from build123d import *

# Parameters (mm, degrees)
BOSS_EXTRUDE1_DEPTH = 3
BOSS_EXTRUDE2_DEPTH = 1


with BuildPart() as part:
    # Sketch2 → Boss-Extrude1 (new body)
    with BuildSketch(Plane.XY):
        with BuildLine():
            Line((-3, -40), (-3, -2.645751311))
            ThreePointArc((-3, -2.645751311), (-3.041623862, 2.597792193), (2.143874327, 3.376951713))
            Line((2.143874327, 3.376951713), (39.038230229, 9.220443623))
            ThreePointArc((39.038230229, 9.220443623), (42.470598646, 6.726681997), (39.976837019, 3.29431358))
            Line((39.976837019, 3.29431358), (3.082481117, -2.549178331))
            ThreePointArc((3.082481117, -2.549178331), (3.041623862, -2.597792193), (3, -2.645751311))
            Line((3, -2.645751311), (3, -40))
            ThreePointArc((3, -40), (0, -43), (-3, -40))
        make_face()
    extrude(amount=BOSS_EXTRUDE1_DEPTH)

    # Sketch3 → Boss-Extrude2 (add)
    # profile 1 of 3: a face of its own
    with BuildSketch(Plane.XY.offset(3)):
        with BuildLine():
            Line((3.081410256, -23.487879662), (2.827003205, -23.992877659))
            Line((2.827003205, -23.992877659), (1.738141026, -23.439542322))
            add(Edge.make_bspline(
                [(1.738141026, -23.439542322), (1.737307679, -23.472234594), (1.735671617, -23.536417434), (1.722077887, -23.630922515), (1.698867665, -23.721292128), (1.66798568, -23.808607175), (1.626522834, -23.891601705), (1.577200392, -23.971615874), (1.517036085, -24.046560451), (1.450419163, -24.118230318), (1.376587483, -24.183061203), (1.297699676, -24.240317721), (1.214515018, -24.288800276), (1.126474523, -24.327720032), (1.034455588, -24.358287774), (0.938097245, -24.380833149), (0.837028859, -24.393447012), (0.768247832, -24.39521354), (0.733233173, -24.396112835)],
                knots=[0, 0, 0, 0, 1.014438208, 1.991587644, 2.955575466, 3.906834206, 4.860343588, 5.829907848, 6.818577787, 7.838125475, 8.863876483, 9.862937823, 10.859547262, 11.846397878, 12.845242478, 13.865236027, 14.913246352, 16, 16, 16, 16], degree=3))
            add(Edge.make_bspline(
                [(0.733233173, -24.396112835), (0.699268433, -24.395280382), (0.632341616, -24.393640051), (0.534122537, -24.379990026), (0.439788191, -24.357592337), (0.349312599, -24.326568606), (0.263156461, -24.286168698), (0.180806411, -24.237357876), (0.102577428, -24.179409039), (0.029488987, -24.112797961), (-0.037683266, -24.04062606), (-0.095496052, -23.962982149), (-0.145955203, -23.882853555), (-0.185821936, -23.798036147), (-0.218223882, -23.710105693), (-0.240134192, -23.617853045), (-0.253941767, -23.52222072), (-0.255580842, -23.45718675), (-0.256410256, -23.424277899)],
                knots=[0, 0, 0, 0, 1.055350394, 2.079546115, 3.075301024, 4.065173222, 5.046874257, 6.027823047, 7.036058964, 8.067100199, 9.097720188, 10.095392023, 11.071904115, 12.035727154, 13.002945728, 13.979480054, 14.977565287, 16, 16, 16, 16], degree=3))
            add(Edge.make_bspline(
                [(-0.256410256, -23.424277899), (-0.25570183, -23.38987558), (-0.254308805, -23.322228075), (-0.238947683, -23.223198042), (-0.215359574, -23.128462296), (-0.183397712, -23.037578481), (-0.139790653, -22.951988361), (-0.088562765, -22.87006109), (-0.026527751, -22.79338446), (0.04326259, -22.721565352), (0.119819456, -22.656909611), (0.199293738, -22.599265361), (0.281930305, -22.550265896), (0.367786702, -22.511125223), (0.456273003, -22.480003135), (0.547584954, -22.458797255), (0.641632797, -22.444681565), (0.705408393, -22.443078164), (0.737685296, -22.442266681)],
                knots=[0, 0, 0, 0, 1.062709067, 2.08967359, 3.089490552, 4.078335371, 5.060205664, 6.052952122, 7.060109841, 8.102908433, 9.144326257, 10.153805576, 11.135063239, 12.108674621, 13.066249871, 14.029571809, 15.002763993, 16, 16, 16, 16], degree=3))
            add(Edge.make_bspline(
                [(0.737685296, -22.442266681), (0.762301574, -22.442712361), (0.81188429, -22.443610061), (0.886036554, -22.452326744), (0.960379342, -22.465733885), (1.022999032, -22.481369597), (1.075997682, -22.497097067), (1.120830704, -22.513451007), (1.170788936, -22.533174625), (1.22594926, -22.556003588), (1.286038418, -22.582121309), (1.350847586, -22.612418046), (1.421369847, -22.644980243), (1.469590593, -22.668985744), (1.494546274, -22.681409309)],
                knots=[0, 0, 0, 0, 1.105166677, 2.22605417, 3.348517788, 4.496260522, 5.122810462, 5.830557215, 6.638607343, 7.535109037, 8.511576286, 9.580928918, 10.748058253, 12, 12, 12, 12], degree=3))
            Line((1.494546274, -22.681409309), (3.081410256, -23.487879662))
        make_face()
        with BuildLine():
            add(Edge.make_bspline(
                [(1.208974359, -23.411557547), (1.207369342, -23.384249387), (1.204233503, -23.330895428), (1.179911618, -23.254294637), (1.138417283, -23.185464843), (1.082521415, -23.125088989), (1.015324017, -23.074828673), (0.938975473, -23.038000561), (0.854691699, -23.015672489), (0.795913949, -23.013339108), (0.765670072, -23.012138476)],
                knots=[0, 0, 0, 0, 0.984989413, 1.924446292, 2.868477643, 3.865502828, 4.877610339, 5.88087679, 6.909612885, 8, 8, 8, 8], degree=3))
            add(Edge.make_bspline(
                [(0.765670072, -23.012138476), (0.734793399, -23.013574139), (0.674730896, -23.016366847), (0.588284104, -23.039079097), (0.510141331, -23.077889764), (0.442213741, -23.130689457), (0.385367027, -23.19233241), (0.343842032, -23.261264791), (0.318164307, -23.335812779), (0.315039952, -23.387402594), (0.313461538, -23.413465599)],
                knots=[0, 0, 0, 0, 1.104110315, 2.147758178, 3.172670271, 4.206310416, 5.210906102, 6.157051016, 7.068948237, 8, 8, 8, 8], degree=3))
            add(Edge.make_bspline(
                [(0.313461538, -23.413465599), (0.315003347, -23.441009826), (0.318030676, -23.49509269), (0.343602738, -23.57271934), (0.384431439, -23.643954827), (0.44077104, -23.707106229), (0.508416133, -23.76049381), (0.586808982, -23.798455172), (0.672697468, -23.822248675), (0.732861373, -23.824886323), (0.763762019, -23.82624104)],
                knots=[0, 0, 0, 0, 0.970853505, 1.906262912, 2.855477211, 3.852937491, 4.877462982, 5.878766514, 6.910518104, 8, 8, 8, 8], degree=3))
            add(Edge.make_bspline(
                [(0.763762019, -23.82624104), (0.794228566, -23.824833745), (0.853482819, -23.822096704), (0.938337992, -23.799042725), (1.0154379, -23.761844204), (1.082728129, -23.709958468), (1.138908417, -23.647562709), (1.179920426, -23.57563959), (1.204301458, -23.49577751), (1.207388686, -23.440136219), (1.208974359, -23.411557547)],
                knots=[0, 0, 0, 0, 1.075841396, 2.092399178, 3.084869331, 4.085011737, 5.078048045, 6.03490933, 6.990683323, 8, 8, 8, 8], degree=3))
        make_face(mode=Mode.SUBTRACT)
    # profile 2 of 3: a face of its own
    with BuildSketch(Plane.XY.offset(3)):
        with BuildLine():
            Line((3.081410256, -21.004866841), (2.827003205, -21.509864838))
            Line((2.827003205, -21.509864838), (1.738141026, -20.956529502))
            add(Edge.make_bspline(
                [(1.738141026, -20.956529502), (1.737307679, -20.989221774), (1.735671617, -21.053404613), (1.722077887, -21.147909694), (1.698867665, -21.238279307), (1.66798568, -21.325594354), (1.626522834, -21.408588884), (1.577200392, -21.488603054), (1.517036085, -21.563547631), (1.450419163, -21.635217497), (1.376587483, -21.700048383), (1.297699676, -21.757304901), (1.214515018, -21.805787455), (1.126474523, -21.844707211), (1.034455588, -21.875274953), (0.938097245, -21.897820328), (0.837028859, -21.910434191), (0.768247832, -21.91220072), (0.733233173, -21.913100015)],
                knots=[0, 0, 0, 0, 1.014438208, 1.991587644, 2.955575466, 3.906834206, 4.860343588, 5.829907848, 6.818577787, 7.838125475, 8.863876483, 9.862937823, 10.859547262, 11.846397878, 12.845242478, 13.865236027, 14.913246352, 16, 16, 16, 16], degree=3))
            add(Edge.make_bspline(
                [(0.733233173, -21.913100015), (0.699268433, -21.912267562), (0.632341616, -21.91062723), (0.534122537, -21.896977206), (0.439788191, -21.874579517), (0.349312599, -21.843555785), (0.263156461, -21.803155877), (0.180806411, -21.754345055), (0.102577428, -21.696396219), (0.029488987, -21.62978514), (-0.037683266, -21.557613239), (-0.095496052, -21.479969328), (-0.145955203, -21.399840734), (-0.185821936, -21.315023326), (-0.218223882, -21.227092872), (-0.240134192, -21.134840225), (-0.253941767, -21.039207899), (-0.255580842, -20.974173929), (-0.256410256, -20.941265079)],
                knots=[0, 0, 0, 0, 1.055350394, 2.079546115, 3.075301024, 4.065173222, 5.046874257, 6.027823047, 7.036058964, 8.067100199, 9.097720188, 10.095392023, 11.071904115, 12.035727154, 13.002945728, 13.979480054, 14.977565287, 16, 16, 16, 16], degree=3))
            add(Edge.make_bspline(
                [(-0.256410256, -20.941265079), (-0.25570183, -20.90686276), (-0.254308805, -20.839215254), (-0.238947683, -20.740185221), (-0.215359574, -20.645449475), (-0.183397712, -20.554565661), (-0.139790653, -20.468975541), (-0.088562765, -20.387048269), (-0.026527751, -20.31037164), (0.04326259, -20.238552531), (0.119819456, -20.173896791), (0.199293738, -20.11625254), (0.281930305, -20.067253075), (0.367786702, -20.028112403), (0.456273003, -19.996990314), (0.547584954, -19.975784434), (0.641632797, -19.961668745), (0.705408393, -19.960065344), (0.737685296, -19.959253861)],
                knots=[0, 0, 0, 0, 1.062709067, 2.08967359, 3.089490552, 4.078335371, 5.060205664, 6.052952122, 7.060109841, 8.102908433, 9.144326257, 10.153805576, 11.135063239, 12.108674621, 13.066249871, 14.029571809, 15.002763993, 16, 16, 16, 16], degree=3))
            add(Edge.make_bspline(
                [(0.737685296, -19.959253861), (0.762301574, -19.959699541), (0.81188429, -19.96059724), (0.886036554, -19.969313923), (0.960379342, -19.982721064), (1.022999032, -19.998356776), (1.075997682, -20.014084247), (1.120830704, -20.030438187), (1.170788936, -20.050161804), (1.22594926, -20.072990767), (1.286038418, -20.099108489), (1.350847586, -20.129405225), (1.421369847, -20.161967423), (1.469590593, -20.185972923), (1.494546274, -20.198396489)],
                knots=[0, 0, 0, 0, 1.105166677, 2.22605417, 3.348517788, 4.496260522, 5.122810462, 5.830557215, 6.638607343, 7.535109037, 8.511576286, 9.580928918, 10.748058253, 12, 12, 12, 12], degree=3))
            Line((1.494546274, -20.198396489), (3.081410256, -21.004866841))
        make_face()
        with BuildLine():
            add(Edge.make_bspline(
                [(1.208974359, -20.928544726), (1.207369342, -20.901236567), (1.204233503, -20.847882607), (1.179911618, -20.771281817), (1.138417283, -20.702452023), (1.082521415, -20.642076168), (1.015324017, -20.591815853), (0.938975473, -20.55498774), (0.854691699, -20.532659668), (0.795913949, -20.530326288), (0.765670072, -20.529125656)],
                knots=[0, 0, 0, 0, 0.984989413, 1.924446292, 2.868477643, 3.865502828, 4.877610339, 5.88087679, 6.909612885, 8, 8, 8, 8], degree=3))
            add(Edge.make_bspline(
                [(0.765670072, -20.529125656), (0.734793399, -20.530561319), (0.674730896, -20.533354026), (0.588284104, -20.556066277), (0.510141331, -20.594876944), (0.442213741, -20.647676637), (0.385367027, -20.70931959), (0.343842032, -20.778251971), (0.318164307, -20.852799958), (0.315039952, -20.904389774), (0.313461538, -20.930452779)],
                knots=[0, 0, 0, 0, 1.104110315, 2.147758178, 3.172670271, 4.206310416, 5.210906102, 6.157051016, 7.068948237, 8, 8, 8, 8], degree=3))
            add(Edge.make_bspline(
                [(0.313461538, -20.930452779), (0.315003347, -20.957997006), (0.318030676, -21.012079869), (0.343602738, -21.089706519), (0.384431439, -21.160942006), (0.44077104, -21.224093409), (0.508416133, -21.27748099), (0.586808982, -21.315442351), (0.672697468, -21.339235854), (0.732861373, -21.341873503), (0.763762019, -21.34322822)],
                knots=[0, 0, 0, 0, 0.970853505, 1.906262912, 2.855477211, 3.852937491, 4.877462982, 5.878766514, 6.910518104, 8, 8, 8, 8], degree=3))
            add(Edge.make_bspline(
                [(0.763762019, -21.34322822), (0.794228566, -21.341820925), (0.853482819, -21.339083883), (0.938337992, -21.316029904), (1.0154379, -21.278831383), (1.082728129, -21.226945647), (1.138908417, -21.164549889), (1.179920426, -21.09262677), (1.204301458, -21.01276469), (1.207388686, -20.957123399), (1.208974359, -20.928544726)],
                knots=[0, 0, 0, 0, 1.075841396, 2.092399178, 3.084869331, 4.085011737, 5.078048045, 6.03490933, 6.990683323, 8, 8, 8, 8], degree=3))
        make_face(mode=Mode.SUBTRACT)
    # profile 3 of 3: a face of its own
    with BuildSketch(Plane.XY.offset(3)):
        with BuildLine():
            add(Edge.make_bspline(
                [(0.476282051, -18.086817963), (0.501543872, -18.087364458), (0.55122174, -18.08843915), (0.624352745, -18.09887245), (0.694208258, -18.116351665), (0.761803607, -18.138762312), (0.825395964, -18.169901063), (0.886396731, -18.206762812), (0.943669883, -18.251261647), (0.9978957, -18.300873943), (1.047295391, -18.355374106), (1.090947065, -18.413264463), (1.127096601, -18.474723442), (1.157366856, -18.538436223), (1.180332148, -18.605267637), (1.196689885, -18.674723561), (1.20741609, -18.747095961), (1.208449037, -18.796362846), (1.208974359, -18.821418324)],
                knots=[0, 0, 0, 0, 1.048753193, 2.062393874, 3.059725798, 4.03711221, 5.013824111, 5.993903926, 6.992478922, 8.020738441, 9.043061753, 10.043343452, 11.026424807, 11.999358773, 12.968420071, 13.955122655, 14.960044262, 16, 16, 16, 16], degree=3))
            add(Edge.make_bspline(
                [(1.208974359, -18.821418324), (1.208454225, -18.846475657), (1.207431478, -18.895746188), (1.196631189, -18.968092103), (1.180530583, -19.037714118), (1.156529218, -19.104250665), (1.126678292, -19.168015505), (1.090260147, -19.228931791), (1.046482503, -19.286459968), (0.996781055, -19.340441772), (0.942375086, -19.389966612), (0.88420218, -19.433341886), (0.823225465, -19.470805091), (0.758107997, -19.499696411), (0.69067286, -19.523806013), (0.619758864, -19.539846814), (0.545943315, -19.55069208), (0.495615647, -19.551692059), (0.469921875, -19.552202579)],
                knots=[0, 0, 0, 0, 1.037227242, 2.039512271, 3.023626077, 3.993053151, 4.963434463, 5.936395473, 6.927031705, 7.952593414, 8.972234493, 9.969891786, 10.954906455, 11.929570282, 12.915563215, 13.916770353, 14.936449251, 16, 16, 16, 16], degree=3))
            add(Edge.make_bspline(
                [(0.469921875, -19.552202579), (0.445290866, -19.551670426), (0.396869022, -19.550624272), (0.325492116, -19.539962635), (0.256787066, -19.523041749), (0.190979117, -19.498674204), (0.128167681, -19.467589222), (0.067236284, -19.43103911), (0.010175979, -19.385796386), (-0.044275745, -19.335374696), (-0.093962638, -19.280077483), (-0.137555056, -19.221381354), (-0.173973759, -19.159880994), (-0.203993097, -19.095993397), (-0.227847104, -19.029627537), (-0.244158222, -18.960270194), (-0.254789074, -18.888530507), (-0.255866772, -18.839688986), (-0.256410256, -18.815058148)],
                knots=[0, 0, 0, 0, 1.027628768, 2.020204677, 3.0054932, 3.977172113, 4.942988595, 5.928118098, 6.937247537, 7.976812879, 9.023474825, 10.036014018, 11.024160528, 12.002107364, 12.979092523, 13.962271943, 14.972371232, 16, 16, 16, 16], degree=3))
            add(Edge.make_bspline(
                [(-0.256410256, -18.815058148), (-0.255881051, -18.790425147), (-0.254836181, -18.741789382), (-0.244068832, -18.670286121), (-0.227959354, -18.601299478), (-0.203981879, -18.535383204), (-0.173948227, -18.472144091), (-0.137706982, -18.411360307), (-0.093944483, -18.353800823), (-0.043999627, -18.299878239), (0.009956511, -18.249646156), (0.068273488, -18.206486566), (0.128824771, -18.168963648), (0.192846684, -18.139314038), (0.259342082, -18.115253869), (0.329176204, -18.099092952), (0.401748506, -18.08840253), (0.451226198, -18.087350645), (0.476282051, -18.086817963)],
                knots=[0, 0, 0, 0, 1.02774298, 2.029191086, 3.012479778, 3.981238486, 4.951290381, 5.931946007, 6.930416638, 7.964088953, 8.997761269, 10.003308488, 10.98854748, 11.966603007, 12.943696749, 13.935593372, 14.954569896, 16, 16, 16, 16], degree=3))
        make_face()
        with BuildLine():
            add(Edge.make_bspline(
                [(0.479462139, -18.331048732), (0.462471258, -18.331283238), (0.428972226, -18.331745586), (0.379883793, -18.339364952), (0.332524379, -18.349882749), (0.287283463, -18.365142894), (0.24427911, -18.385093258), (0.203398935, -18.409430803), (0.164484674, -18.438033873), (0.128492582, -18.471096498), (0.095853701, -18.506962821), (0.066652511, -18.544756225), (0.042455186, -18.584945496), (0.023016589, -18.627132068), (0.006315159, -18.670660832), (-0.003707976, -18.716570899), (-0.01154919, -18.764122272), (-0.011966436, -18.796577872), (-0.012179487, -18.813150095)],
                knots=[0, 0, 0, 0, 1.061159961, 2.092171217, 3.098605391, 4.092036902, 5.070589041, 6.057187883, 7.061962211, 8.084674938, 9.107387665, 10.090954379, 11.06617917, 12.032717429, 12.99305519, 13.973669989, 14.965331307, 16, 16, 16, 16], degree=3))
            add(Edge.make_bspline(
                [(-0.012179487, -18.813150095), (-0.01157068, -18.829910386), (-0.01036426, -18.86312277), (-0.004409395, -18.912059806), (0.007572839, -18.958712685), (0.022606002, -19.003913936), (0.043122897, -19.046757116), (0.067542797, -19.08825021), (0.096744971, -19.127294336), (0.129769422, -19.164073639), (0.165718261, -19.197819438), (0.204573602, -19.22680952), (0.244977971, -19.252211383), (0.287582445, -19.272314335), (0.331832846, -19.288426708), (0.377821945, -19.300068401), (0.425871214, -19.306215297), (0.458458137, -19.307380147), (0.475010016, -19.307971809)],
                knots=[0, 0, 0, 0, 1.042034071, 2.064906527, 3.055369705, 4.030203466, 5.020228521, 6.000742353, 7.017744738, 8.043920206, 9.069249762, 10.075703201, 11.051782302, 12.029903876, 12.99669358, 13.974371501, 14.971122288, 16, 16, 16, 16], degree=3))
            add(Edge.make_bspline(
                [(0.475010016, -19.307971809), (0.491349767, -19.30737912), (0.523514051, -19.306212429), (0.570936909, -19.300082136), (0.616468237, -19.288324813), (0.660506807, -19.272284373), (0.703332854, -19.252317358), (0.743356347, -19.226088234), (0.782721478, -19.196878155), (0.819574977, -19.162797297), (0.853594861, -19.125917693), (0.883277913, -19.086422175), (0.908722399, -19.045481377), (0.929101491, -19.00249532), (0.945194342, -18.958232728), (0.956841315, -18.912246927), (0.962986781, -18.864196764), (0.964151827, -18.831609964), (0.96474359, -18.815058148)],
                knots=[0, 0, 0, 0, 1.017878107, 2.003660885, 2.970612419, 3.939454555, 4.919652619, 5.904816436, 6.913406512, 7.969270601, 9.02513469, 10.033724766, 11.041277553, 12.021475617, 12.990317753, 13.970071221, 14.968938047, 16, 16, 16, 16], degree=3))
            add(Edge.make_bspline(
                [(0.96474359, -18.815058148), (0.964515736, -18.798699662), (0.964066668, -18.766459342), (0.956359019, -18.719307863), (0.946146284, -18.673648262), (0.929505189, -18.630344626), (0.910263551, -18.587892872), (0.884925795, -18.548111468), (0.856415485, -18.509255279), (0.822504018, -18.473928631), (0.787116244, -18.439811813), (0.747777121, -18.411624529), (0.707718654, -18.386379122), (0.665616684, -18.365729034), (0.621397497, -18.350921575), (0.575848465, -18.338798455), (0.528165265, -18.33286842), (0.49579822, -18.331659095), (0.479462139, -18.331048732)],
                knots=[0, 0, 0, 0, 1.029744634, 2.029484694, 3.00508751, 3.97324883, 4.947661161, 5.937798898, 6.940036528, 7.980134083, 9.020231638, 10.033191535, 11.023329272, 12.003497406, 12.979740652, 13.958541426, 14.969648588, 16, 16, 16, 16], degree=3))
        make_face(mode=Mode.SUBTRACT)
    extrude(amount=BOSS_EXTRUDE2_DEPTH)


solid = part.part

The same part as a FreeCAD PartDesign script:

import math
import FreeCAD as App
import Part
import Sketcher
Q = App.Units.Quantity

doc = App.newDocument("Part")
body = doc.addObject("PartDesign::Body", "Body")

# Sketch on XY plane
sketch1 = body.newObject("Sketcher::SketchObject", "Sketch")
sketch1.AttachmentSupport = (doc.getObject("XY_Plane"), [""])
sketch1.MapMode = "FlatFace"
sketch1.addGeometry([
    Part.LineSegment(App.Vector(-3, -2.65, 0), App.Vector(-3, -40, 0)),  # 0
    Part.ArcOfCircle(Part.Circle(App.Vector(0, -40, 0), App.Vector(0, 0, 1), 3), math.radians(180), math.radians(360)),  # 1
    Part.LineSegment(App.Vector(3, -40, 0), App.Vector(3, -2.65, 0)),  # 2
    Part.ArcOfCircle(Part.Circle(App.Vector(0, 0, 0), App.Vector(0, 0, 1), 4), math.radians(-41.41), math.radians(-39.59)),  # 3
    Part.LineSegment(App.Vector(3.08, -2.55, 0), App.Vector(39.98, 3.29, 0)),  # 4
    Part.ArcOfCircle(Part.Circle(App.Vector(39.51, 6.26, 0), App.Vector(0, 0, 1), 3), math.radians(-81), math.radians(99)),  # 5
    Part.LineSegment(App.Vector(39.04, 9.22, 0), App.Vector(2.14, 3.38, 0)),  # 6
    Part.ArcOfCircle(Part.Circle(App.Vector(0, 0, 0), App.Vector(0, 0, 1), 4), math.radians(58), math.radians(221)),  # 7
], False)
sketch1.addConstraint([
    Sketcher.Constraint("Tangent", 0, 2, 1, 1),
    Sketcher.Constraint("Tangent", 1, 2, 2, 1),
    Sketcher.Constraint("Coincident", 2, 2, 3, 1),
    Sketcher.Constraint("Coincident", 3, 2, 4, 1),
    Sketcher.Constraint("Tangent", 4, 2, 5, 1),
    Sketcher.Constraint("Tangent", 5, 2, 6, 1),
    Sketcher.Constraint("Coincident", 6, 2, 7, 1),
    Sketcher.Constraint("Coincident", 7, 2, 0, 1),
    Sketcher.Constraint("Vertical", 0),
    Sketcher.Constraint("Vertical", 2),
    Sketcher.Constraint("Coincident", 3, 3, -1, 1),
    Sketcher.Constraint("Coincident", 7, 3, -1, 1),
    Sketcher.Constraint("Equal", 1, 5),
    Sketcher.Constraint("Symmetric", 2, 2, 7, 2, -2),
    Sketcher.Constraint("Parallel", 4, 6),
    Sketcher.Constraint("Equal", 4, 6),
    Sketcher.Constraint("Radius", 1, Q("3 mm")),
    Sketcher.Constraint("Radius", 7, Q("4 mm")),
    Sketcher.Constraint("Angle", 4, Q("9 deg")),
    Sketcher.Constraint("DistanceY", 1, 3, -1, 1, Q("40 mm")),
    Sketcher.Constraint("Distance", 4, Q("37.354249 mm")),
])
pad1 = body.newObject("PartDesign::Pad", "Pad")
pad1.Profile = sketch1
pad1.Length = 3

# Sketch on XY plane
sketch2 = body.newObject("Sketcher::SketchObject", "Sketch001")
sketch2.AttachmentSupport = (doc.getObject("XY_Plane"), [""])
sketch2.MapMode = "FlatFace"
sketch2.AttachmentOffset = App.Placement(App.Vector(0, 0, 3), App.Rotation())
sketch2.addGeometry([
    Part.LineSegment(App.Vector(2.827003, -23.992878, 0), App.Vector(3.08141, -23.48788, 0)),  # 0
    Part.LineSegment(App.Vector(3.08141, -23.48788, 0), App.Vector(1.494546, -22.681409, 0)),  # 1
    Part.BSplineCurve([App.Vector(0.737685, -22.442267, 0), App.Vector(0.762302, -22.442712, 0), App.Vector(0.811884, -22.44361, 0), App.Vector(0.886037, -22.452327, 0), App.Vector(0.960379, -22.465734, 0), App.Vector(1.022999, -22.48137, 0), App.Vector(1.075998, -22.497097, 0), App.Vector(1.120831, -22.513451, 0), App.Vector(1.170789, -22.533175, 0), App.Vector(1.225949, -22.556004, 0), App.Vector(1.286038, -22.582121, 0), App.Vector(1.350848, -22.612418, 0), App.Vector(1.42137, -22.64498, 0), App.Vector(1.469591, -22.668986, 0), App.Vector(1.494546, -22.681409, 0)], [4, 1, 1, 1, 1, 1, 1, 1, 1, 1, 1, 1, 4], [0, 1.105166677, 2.22605417, 3.348517788, 4.496260522, 5.122810462, 5.830557215, 6.638607343, 7.535109037, 8.511576286, 9.580928918, 10.748058253, 12], False, 3, [1, 1, 1, 1, 1, 1, 1, 1, 1, 1, 1, 1, 1, 1, 1], False),  # 2
    Part.BSplineCurve([App.Vector(-0.25641, -23.424278, 0), App.Vector(-0.255702, -23.389876, 0), App.Vector(-0.254309, -23.322228, 0), App.Vector(-0.238948, -23.223198, 0), App.Vector(-0.21536, -23.128462, 0), App.Vector(-0.183398, -23.037578, 0), App.Vector(-0.139791, -22.951988, 0), App.Vector(-0.088563, -22.870061, 0), App.Vector(-0.026528, -22.793384, 0), App.Vector(0.043263, -22.721565, 0), App.Vector(0.119819, -22.65691, 0), App.Vector(0.199294, -22.599265, 0), App.Vector(0.28193, -22.550266, 0), App.Vector(0.367787, -22.511125, 0), App.Vector(0.456273, -22.480003, 0), App.Vector(0.547585, -22.458797, 0), App.Vector(0.641633, -22.444682, 0), App.Vector(0.705408, -22.443078, 0), App.Vector(0.737685, -22.442267, 0)], [4, 1, 1, 1, 1, 1, 1, 1, 1, 1, 1, 1, 1, 1, 1, 1, 4], [0, 1.062709067, 2.08967359, 3.089490552, 4.078335371, 5.060205664, 6.052952122, 7.060109841, 8.102908433, 9.144326257, 10.153805576, 11.135063239, 12.108674621, 13.066249871, 14.029571809, 15.002763993, 16], False, 3, [1, 1, 1, 1, 1, 1, 1, 1, 1, 1, 1, 1, 1, 1, 1, 1, 1, 1, 1], False),  # 3
    Part.BSplineCurve([App.Vector(0.733233, -24.396113, 0), App.Vector(0.699268, -24.39528, 0), App.Vector(0.632342, -24.39364, 0), App.Vector(0.534123, -24.37999, 0), App.Vector(0.439788, -24.357592, 0), App.Vector(0.349313, -24.326569, 0), App.Vector(0.263156, -24.286169, 0), App.Vector(0.180806, -24.237358, 0), App.Vector(0.102577, -24.179409, 0), App.Vector(0.029489, -24.112798, 0), App.Vector(-0.037683, -24.040626, 0), App.Vector(-0.095496, -23.962982, 0), App.Vector(-0.145955, -23.882854, 0), App.Vector(-0.185822, -23.798036, 0), App.Vector(-0.218224, -23.710106, 0), App.Vector(-0.240134, -23.617853, 0), App.Vector(-0.253942, -23.522221, 0), App.Vector(-0.255581, -23.457187, 0), App.Vector(-0.25641, -23.424278, 0)], [4, 1, 1, 1, 1, 1, 1, 1, 1, 1, 1, 1, 1, 1, 1, 1, 4], [0, 1.055350394, 2.079546115, 3.075301024, 4.065173222, 5.046874257, 6.027823047, 7.036058964, 8.067100199, 9.097720188, 10.095392023, 11.071904115, 12.035727154, 13.002945728, 13.979480054, 14.977565287, 16], False, 3, [1, 1, 1, 1, 1, 1, 1, 1, 1, 1, 1, 1, 1, 1, 1, 1, 1, 1, 1], False),  # 4
    Part.BSplineCurve([App.Vector(1.738141, -23.439542, 0), App.Vector(1.737308, -23.472235, 0), App.Vector(1.735672, -23.536417, 0), App.Vector(1.722078, -23.630923, 0), App.Vector(1.698868, -23.721292, 0), App.Vector(1.667986, -23.808607, 0), App.Vector(1.626523, -23.891602, 0), App.Vector(1.5772, -23.971616, 0), App.Vector(1.517036, -24.04656, 0), App.Vector(1.450419, -24.11823, 0), App.Vector(1.376587, -24.183061, 0), App.Vector(1.2977, -24.240318, 0), App.Vector(1.214515, -24.2888, 0), App.Vector(1.126475, -24.32772, 0), App.Vector(1.034456, -24.358288, 0), App.Vector(0.938097, -24.380833, 0), App.Vector(0.837029, -24.393447, 0), App.Vector(0.768248, -24.395214, 0), App.Vector(0.733233, -24.396113, 0)], [4, 1, 1, 1, 1, 1, 1, 1, 1, 1, 1, 1, 1, 1, 1, 1, 4], [0, 1.014438208, 1.991587644, 2.955575466, 3.906834206, 4.860343588, 5.829907848, 6.818577787, 7.838125475, 8.863876483, 9.862937823, 10.859547262, 11.846397878, 12.845242478, 13.865236027, 14.913246352, 16], False, 3, [1, 1, 1, 1, 1, 1, 1, 1, 1, 1, 1, 1, 1, 1, 1, 1, 1, 1, 1], False),  # 5
    Part.LineSegment(App.Vector(1.738141, -23.439542, 0), App.Vector(2.827003, -23.992878, 0)),  # 6
    Part.BSplineCurve([App.Vector(0.763762, -23.826241, 0), App.Vector(0.794229, -23.824834, 0), App.Vector(0.853483, -23.822097, 0), App.Vector(0.938338, -23.799043, 0), App.Vector(1.015438, -23.761844, 0), App.Vector(1.082728, -23.709958, 0), App.Vector(1.138908, -23.647563, 0), App.Vector(1.17992, -23.57564, 0), App.Vector(1.204301, -23.495778, 0), App.Vector(1.207389, -23.440136, 0), App.Vector(1.208974, -23.411558, 0)], [4, 1, 1, 1, 1, 1, 1, 1, 4], [0, 1.075841396, 2.092399178, 3.084869331, 4.085011737, 5.078048045, 6.03490933, 6.990683323, 8], False, 3, [1, 1, 1, 1, 1, 1, 1, 1, 1, 1, 1], False),  # 7
    Part.BSplineCurve([App.Vector(0.313462, -23.413466, 0), App.Vector(0.315003, -23.44101, 0), App.Vector(0.318031, -23.495093, 0), App.Vector(0.343603, -23.572719, 0), App.Vector(0.384431, -23.643955, 0), App.Vector(0.440771, -23.707106, 0), App.Vector(0.508416, -23.760494, 0), App.Vector(0.586809, -23.798455, 0), App.Vector(0.672697, -23.822249, 0), App.Vector(0.732861, -23.824886, 0), App.Vector(0.763762, -23.826241, 0)], [4, 1, 1, 1, 1, 1, 1, 1, 4], [0, 0.970853505, 1.906262912, 2.855477211, 3.852937491, 4.877462982, 5.878766514, 6.910518104, 8], False, 3, [1, 1, 1, 1, 1, 1, 1, 1, 1, 1, 1], False),  # 8
    Part.BSplineCurve([App.Vector(0.76567, -23.012138, 0), App.Vector(0.734793, -23.013574, 0), App.Vector(0.674731, -23.016367, 0), App.Vector(0.588284, -23.039079, 0), App.Vector(0.510141, -23.07789, 0), App.Vector(0.442214, -23.130689, 0), App.Vector(0.385367, -23.192332, 0), App.Vector(0.343842, -23.261265, 0), App.Vector(0.318164, -23.335813, 0), App.Vector(0.31504, -23.387403, 0), App.Vector(0.313462, -23.413466, 0)], [4, 1, 1, 1, 1, 1, 1, 1, 4], [0, 1.104110315, 2.147758178, 3.172670271, 4.206310416, 5.210906102, 6.157051016, 7.068948237, 8], False, 3, [1, 1, 1, 1, 1, 1, 1, 1, 1, 1, 1], False),  # 9
    Part.BSplineCurve([App.Vector(1.208974, -23.411558, 0), App.Vector(1.207369, -23.384249, 0), App.Vector(1.204234, -23.330895, 0), App.Vector(1.179912, -23.254295, 0), App.Vector(1.138417, -23.185465, 0), App.Vector(1.082521, -23.125089, 0), App.Vector(1.015324, -23.074829, 0), App.Vector(0.938975, -23.038001, 0), App.Vector(0.854692, -23.015672, 0), App.Vector(0.795914, -23.013339, 0), App.Vector(0.76567, -23.012138, 0)], [4, 1, 1, 1, 1, 1, 1, 1, 4], [0, 0.984989413, 1.924446292, 2.868477643, 3.865502828, 4.877610339, 5.88087679, 6.909612885, 8], False, 3, [1, 1, 1, 1, 1, 1, 1, 1, 1, 1, 1], False),  # 10
    Part.LineSegment(App.Vector(2.827003, -21.509865, 0), App.Vector(3.08141, -21.004867, 0)),  # 11
    Part.LineSegment(App.Vector(3.08141, -21.004867, 0), App.Vector(1.494546, -20.198396, 0)),  # 12
    Part.BSplineCurve([App.Vector(0.737685, -19.959254, 0), App.Vector(0.762302, -19.9597, 0), App.Vector(0.811884, -19.960597, 0), App.Vector(0.886037, -19.969314, 0), App.Vector(0.960379, -19.982721, 0), App.Vector(1.022999, -19.998357, 0), App.Vector(1.075998, -20.014084, 0), App.Vector(1.120831, -20.030438, 0), App.Vector(1.170789, -20.050162, 0), App.Vector(1.225949, -20.072991, 0), App.Vector(1.286038, -20.099108, 0), App.Vector(1.350848, -20.129405, 0), App.Vector(1.42137, -20.161967, 0), App.Vector(1.469591, -20.185973, 0), App.Vector(1.494546, -20.198396, 0)], [4, 1, 1, 1, 1, 1, 1, 1, 1, 1, 1, 1, 4], [0, 1.105166677, 2.22605417, 3.348517788, 4.496260522, 5.122810462, 5.830557215, 6.638607343, 7.535109037, 8.511576286, 9.580928918, 10.748058253, 12], False, 3, [1, 1, 1, 1, 1, 1, 1, 1, 1, 1, 1, 1, 1, 1, 1], False),  # 13
    Part.BSplineCurve([App.Vector(-0.25641, -20.941265, 0), App.Vector(-0.255702, -20.906863, 0), App.Vector(-0.254309, -20.839215, 0), App.Vector(-0.238948, -20.740185, 0), App.Vector(-0.21536, -20.645449, 0), App.Vector(-0.183398, -20.554566, 0), App.Vector(-0.139791, -20.468976, 0), App.Vector(-0.088563, -20.387048, 0), App.Vector(-0.026528, -20.310372, 0), App.Vector(0.043263, -20.238553, 0), App.Vector(0.119819, -20.173897, 0), App.Vector(0.199294, -20.116253, 0), App.Vector(0.28193, -20.067253, 0), App.Vector(0.367787, -20.028112, 0), App.Vector(0.456273, -19.99699, 0), App.Vector(0.547585, -19.975784, 0), App.Vector(0.641633, -19.961669, 0), App.Vector(0.705408, -19.960065, 0), App.Vector(0.737685, -19.959254, 0)], [4, 1, 1, 1, 1, 1, 1, 1, 1, 1, 1, 1, 1, 1, 1, 1, 4], [0, 1.062709067, 2.08967359, 3.089490552, 4.078335371, 5.060205664, 6.052952122, 7.060109841, 8.102908433, 9.144326257, 10.153805576, 11.135063239, 12.108674621, 13.066249871, 14.029571809, 15.002763993, 16], False, 3, [1, 1, 1, 1, 1, 1, 1, 1, 1, 1, 1, 1, 1, 1, 1, 1, 1, 1, 1], False),  # 14
    Part.BSplineCurve([App.Vector(0.733233, -21.9131, 0), App.Vector(0.699268, -21.912268, 0), App.Vector(0.632342, -21.910627, 0), App.Vector(0.534123, -21.896977, 0), App.Vector(0.439788, -21.87458, 0), App.Vector(0.349313, -21.843556, 0), App.Vector(0.263156, -21.803156, 0), App.Vector(0.180806, -21.754345, 0), App.Vector(0.102577, -21.696396, 0), App.Vector(0.029489, -21.629785, 0), App.Vector(-0.037683, -21.557613, 0), App.Vector(-0.095496, -21.479969, 0), App.Vector(-0.145955, -21.399841, 0), App.Vector(-0.185822, -21.315023, 0), App.Vector(-0.218224, -21.227093, 0), App.Vector(-0.240134, -21.13484, 0), App.Vector(-0.253942, -21.039208, 0), App.Vector(-0.255581, -20.974174, 0), App.Vector(-0.25641, -20.941265, 0)], [4, 1, 1, 1, 1, 1, 1, 1, 1, 1, 1, 1, 1, 1, 1, 1, 4], [0, 1.055350394, 2.079546115, 3.075301024, 4.065173222, 5.046874257, 6.027823047, 7.036058964, 8.067100199, 9.097720188, 10.095392023, 11.071904115, 12.035727154, 13.002945728, 13.979480054, 14.977565287, 16], False, 3, [1, 1, 1, 1, 1, 1, 1, 1, 1, 1, 1, 1, 1, 1, 1, 1, 1, 1, 1], False),  # 15
    Part.BSplineCurve([App.Vector(1.738141, -20.95653, 0), App.Vector(1.737308, -20.989222, 0), App.Vector(1.735672, -21.053405, 0), App.Vector(1.722078, -21.14791, 0), App.Vector(1.698868, -21.238279, 0), App.Vector(1.667986, -21.325594, 0), App.Vector(1.626523, -21.408589, 0), App.Vector(1.5772, -21.488603, 0), App.Vector(1.517036, -21.563548, 0), App.Vector(1.450419, -21.635217, 0), App.Vector(1.376587, -21.700048, 0), App.Vector(1.2977, -21.757305, 0), App.Vector(1.214515, -21.805787, 0), App.Vector(1.126475, -21.844707, 0), App.Vector(1.034456, -21.875275, 0), App.Vector(0.938097, -21.89782, 0), App.Vector(0.837029, -21.910434, 0), App.Vector(0.768248, -21.912201, 0), App.Vector(0.733233, -21.9131, 0)], [4, 1, 1, 1, 1, 1, 1, 1, 1, 1, 1, 1, 1, 1, 1, 1, 4], [0, 1.014438208, 1.991587644, 2.955575466, 3.906834206, 4.860343588, 5.829907848, 6.818577787, 7.838125475, 8.863876483, 9.862937823, 10.859547262, 11.846397878, 12.845242478, 13.865236027, 14.913246352, 16], False, 3, [1, 1, 1, 1, 1, 1, 1, 1, 1, 1, 1, 1, 1, 1, 1, 1, 1, 1, 1], False),  # 16
    Part.LineSegment(App.Vector(1.738141, -20.95653, 0), App.Vector(2.827003, -21.509865, 0)),  # 17
    Part.BSplineCurve([App.Vector(0.763762, -21.343228, 0), App.Vector(0.794229, -21.341821, 0), App.Vector(0.853483, -21.339084, 0), App.Vector(0.938338, -21.31603, 0), App.Vector(1.015438, -21.278831, 0), App.Vector(1.082728, -21.226946, 0), App.Vector(1.138908, -21.16455, 0), App.Vector(1.17992, -21.092627, 0), App.Vector(1.204301, -21.012765, 0), App.Vector(1.207389, -20.957123, 0), App.Vector(1.208974, -20.928545, 0)], [4, 1, 1, 1, 1, 1, 1, 1, 4], [0, 1.075841396, 2.092399178, 3.084869331, 4.085011737, 5.078048045, 6.03490933, 6.990683323, 8], False, 3, [1, 1, 1, 1, 1, 1, 1, 1, 1, 1, 1], False),  # 18
    Part.BSplineCurve([App.Vector(0.313462, -20.930453, 0), App.Vector(0.315003, -20.957997, 0), App.Vector(0.318031, -21.01208, 0), App.Vector(0.343603, -21.089707, 0), App.Vector(0.384431, -21.160942, 0), App.Vector(0.440771, -21.224093, 0), App.Vector(0.508416, -21.277481, 0), App.Vector(0.586809, -21.315442, 0), App.Vector(0.672697, -21.339236, 0), App.Vector(0.732861, -21.341874, 0), App.Vector(0.763762, -21.343228, 0)], [4, 1, 1, 1, 1, 1, 1, 1, 4], [0, 0.970853505, 1.906262912, 2.855477211, 3.852937491, 4.877462982, 5.878766514, 6.910518104, 8], False, 3, [1, 1, 1, 1, 1, 1, 1, 1, 1, 1, 1], False),  # 19
    Part.BSplineCurve([App.Vector(0.76567, -20.529126, 0), App.Vector(0.734793, -20.530561, 0), App.Vector(0.674731, -20.533354, 0), App.Vector(0.588284, -20.556066, 0), App.Vector(0.510141, -20.594877, 0), App.Vector(0.442214, -20.647677, 0), App.Vector(0.385367, -20.70932, 0), App.Vector(0.343842, -20.778252, 0), App.Vector(0.318164, -20.8528, 0), App.Vector(0.31504, -20.90439, 0), App.Vector(0.313462, -20.930453, 0)], [4, 1, 1, 1, 1, 1, 1, 1, 4], [0, 1.104110315, 2.147758178, 3.172670271, 4.206310416, 5.210906102, 6.157051016, 7.068948237, 8], False, 3, [1, 1, 1, 1, 1, 1, 1, 1, 1, 1, 1], False),  # 20
    Part.BSplineCurve([App.Vector(1.208974, -20.928545, 0), App.Vector(1.207369, -20.901237, 0), App.Vector(1.204234, -20.847883, 0), App.Vector(1.179912, -20.771282, 0), App.Vector(1.138417, -20.702452, 0), App.Vector(1.082521, -20.642076, 0), App.Vector(1.015324, -20.591816, 0), App.Vector(0.938975, -20.554988, 0), App.Vector(0.854692, -20.53266, 0), App.Vector(0.795914, -20.530326, 0), App.Vector(0.76567, -20.529126, 0)], [4, 1, 1, 1, 1, 1, 1, 1, 4], [0, 0.984989413, 1.924446292, 2.868477643, 3.865502828, 4.877610339, 5.88087679, 6.909612885, 8], False, 3, [1, 1, 1, 1, 1, 1, 1, 1, 1, 1, 1], False),  # 21
    Part.BSplineCurve([App.Vector(0.476282, -18.086818, 0), App.Vector(0.501544, -18.087364, 0), App.Vector(0.551222, -18.088439, 0), App.Vector(0.624353, -18.098872, 0), App.Vector(0.694208, -18.116352, 0), App.Vector(0.761804, -18.138762, 0), App.Vector(0.825396, -18.169901, 0), App.Vector(0.886397, -18.206763, 0), App.Vector(0.94367, -18.251262, 0), App.Vector(0.997896, -18.300874, 0), App.Vector(1.047295, -18.355374, 0), App.Vector(1.090947, -18.413264, 0), App.Vector(1.127097, -18.474723, 0), App.Vector(1.157367, -18.538436, 0), App.Vector(1.180332, -18.605268, 0), App.Vector(1.19669, -18.674724, 0), App.Vector(1.207416, -18.747096, 0), App.Vector(1.208449, -18.796363, 0), App.Vector(1.208974, -18.821418, 0)], [4, 1, 1, 1, 1, 1, 1, 1, 1, 1, 1, 1, 1, 1, 1, 1, 4], [0, 1.048753193, 2.062393874, 3.059725798, 4.03711221, 5.013824111, 5.993903926, 6.992478922, 8.020738441, 9.043061753, 10.043343452, 11.026424807, 11.999358773, 12.968420071, 13.955122655, 14.960044262, 16], False, 3, [1, 1, 1, 1, 1, 1, 1, 1, 1, 1, 1, 1, 1, 1, 1, 1, 1, 1, 1], False),  # 22
    Part.BSplineCurve([App.Vector(-0.25641, -18.815058, 0), App.Vector(-0.255881, -18.790425, 0), App.Vector(-0.254836, -18.741789, 0), App.Vector(-0.244069, -18.670286, 0), App.Vector(-0.227959, -18.601299, 0), App.Vector(-0.203982, -18.535383, 0), App.Vector(-0.173948, -18.472144, 0), App.Vector(-0.137707, -18.41136, 0), App.Vector(-0.093944, -18.353801, 0), App.Vector(-0.044, -18.299878, 0), App.Vector(0.009957, -18.249646, 0), App.Vector(0.068273, -18.206487, 0), App.Vector(0.128825, -18.168964, 0), App.Vector(0.192847, -18.139314, 0), App.Vector(0.259342, -18.115254, 0), App.Vector(0.329176, -18.099093, 0), App.Vector(0.401749, -18.088403, 0), App.Vector(0.451226, -18.087351, 0), App.Vector(0.476282, -18.086818, 0)], [4, 1, 1, 1, 1, 1, 1, 1, 1, 1, 1, 1, 1, 1, 1, 1, 4], [0, 1.02774298, 2.029191086, 3.012479778, 3.981238486, 4.951290381, 5.931946007, 6.930416638, 7.964088953, 8.997761269, 10.003308488, 10.98854748, 11.966603007, 12.943696749, 13.935593372, 14.954569896, 16], False, 3, [1, 1, 1, 1, 1, 1, 1, 1, 1, 1, 1, 1, 1, 1, 1, 1, 1, 1, 1], False),  # 23
    Part.BSplineCurve([App.Vector(0.469922, -19.552203, 0), App.Vector(0.445291, -19.55167, 0), App.Vector(0.396869, -19.550624, 0), App.Vector(0.325492, -19.539963, 0), App.Vector(0.256787, -19.523042, 0), App.Vector(0.190979, -19.498674, 0), App.Vector(0.128168, -19.467589, 0), App.Vector(0.067236, -19.431039, 0), App.Vector(0.010176, -19.385796, 0), App.Vector(-0.044276, -19.335375, 0), App.Vector(-0.093963, -19.280077, 0), App.Vector(-0.137555, -19.221381, 0), App.Vector(-0.173974, -19.159881, 0), App.Vector(-0.203993, -19.095993, 0), App.Vector(-0.227847, -19.029628, 0), App.Vector(-0.244158, -18.96027, 0), App.Vector(-0.254789, -18.888531, 0), App.Vector(-0.255867, -18.839689, 0), App.Vector(-0.25641, -18.815058, 0)], [4, 1, 1, 1, 1, 1, 1, 1, 1, 1, 1, 1, 1, 1, 1, 1, 4], [0, 1.027628768, 2.020204677, 3.0054932, 3.977172113, 4.942988595, 5.928118098, 6.937247537, 7.976812879, 9.023474825, 10.036014018, 11.024160528, 12.002107364, 12.979092523, 13.962271943, 14.972371232, 16], False, 3, [1, 1, 1, 1, 1, 1, 1, 1, 1, 1, 1, 1, 1, 1, 1, 1, 1, 1, 1], False),  # 24
    Part.BSplineCurve([App.Vector(1.208974, -18.821418, 0), App.Vector(1.208454, -18.846476, 0), App.Vector(1.207431, -18.895746, 0), App.Vector(1.196631, -18.968092, 0), App.Vector(1.180531, -19.037714, 0), App.Vector(1.156529, -19.104251, 0), App.Vector(1.126678, -19.168016, 0), App.Vector(1.09026, -19.228932, 0), App.Vector(1.046483, -19.28646, 0), App.Vector(0.996781, -19.340442, 0), App.Vector(0.942375, -19.389967, 0), App.Vector(0.884202, -19.433342, 0), App.Vector(0.823225, -19.470805, 0), App.Vector(0.758108, -19.499696, 0), App.Vector(0.690673, -19.523806, 0), App.Vector(0.619759, -19.539847, 0), App.Vector(0.545943, -19.550692, 0), App.Vector(0.495616, -19.551692, 0), App.Vector(0.469922, -19.552203, 0)], [4, 1, 1, 1, 1, 1, 1, 1, 1, 1, 1, 1, 1, 1, 1, 1, 4], [0, 1.037227242, 2.039512271, 3.023626077, 3.993053151, 4.963434463, 5.936395473, 6.927031705, 7.952593414, 8.972234493, 9.969891786, 10.954906455, 11.929570282, 12.915563215, 13.916770353, 14.936449251, 16], False, 3, [1, 1, 1, 1, 1, 1, 1, 1, 1, 1, 1, 1, 1, 1, 1, 1, 1, 1, 1], False),  # 25
    Part.BSplineCurve([App.Vector(0.964744, -18.815058, 0), App.Vector(0.964516, -18.7987, 0), App.Vector(0.964067, -18.766459, 0), App.Vector(0.956359, -18.719308, 0), App.Vector(0.946146, -18.673648, 0), App.Vector(0.929505, -18.630345, 0), App.Vector(0.910264, -18.587893, 0), App.Vector(0.884926, -18.548111, 0), App.Vector(0.856415, -18.509255, 0), App.Vector(0.822504, -18.473929, 0), App.Vector(0.787116, -18.439812, 0), App.Vector(0.747777, -18.411625, 0), App.Vector(0.707719, -18.386379, 0), App.Vector(0.665617, -18.365729, 0), App.Vector(0.621397, -18.350922, 0), App.Vector(0.575848, -18.338798, 0), App.Vector(0.528165, -18.332868, 0), App.Vector(0.495798, -18.331659, 0), App.Vector(0.479462, -18.331049, 0)], [4, 1, 1, 1, 1, 1, 1, 1, 1, 1, 1, 1, 1, 1, 1, 1, 4], [0, 1.029744634, 2.029484694, 3.00508751, 3.97324883, 4.947661161, 5.937798898, 6.940036528, 7.980134083, 9.020231638, 10.033191535, 11.023329272, 12.003497406, 12.979740652, 13.958541426, 14.969648588, 16], False, 3, [1, 1, 1, 1, 1, 1, 1, 1, 1, 1, 1, 1, 1, 1, 1, 1, 1, 1, 1], False),  # 26
    Part.BSplineCurve([App.Vector(0.47501, -19.307972, 0), App.Vector(0.49135, -19.307379, 0), App.Vector(0.523514, -19.306212, 0), App.Vector(0.570937, -19.300082, 0), App.Vector(0.616468, -19.288325, 0), App.Vector(0.660507, -19.272284, 0), App.Vector(0.703333, -19.252317, 0), App.Vector(0.743356, -19.226088, 0), App.Vector(0.782721, -19.196878, 0), App.Vector(0.819575, -19.162797, 0), App.Vector(0.853595, -19.125918, 0), App.Vector(0.883278, -19.086422, 0), App.Vector(0.908722, -19.045481, 0), App.Vector(0.929101, -19.002495, 0), App.Vector(0.945194, -18.958233, 0), App.Vector(0.956841, -18.912247, 0), App.Vector(0.962987, -18.864197, 0), App.Vector(0.964152, -18.83161, 0), App.Vector(0.964744, -18.815058, 0)], [4, 1, 1, 1, 1, 1, 1, 1, 1, 1, 1, 1, 1, 1, 1, 1, 4], [0, 1.017878107, 2.003660885, 2.970612419, 3.939454555, 4.919652619, 5.904816436, 6.913406512, 7.969270601, 9.02513469, 10.033724766, 11.041277553, 12.021475617, 12.990317753, 13.970071221, 14.968938047, 16], False, 3, [1, 1, 1, 1, 1, 1, 1, 1, 1, 1, 1, 1, 1, 1, 1, 1, 1, 1, 1], False),  # 27
    Part.BSplineCurve([App.Vector(-0.012179, -18.81315, 0), App.Vector(-0.011571, -18.82991, 0), App.Vector(-0.010364, -18.863123, 0), App.Vector(-0.004409, -18.91206, 0), App.Vector(0.007573, -18.958713, 0), App.Vector(0.022606, -19.003914, 0), App.Vector(0.043123, -19.046757, 0), App.Vector(0.067543, -19.08825, 0), App.Vector(0.096745, -19.127294, 0), App.Vector(0.129769, -19.164074, 0), App.Vector(0.165718, -19.197819, 0), App.Vector(0.204574, -19.22681, 0), App.Vector(0.244978, -19.252211, 0), App.Vector(0.287582, -19.272314, 0), App.Vector(0.331833, -19.288427, 0), App.Vector(0.377822, -19.300068, 0), App.Vector(0.425871, -19.306215, 0), App.Vector(0.458458, -19.30738, 0), App.Vector(0.47501, -19.307972, 0)], [4, 1, 1, 1, 1, 1, 1, 1, 1, 1, 1, 1, 1, 1, 1, 1, 4], [0, 1.042034071, 2.064906527, 3.055369705, 4.030203466, 5.020228521, 6.000742353, 7.017744738, 8.043920206, 9.069249762, 10.075703201, 11.051782302, 12.029903876, 12.99669358, 13.974371501, 14.971122288, 16], False, 3, [1, 1, 1, 1, 1, 1, 1, 1, 1, 1, 1, 1, 1, 1, 1, 1, 1, 1, 1], False),  # 28
    Part.BSplineCurve([App.Vector(0.479462, -18.331049, 0), App.Vector(0.462471, -18.331283, 0), App.Vector(0.428972, -18.331746, 0), App.Vector(0.379884, -18.339365, 0), App.Vector(0.332524, -18.349883, 0), App.Vector(0.287283, -18.365143, 0), App.Vector(0.244279, -18.385093, 0), App.Vector(0.203399, -18.409431, 0), App.Vector(0.164485, -18.438034, 0), App.Vector(0.128493, -18.471096, 0), App.Vector(0.095854, -18.506963, 0), App.Vector(0.066653, -18.544756, 0), App.Vector(0.042455, -18.584945, 0), App.Vector(0.023017, -18.627132, 0), App.Vector(0.006315, -18.670661, 0), App.Vector(-0.003708, -18.716571, 0), App.Vector(-0.011549, -18.764122, 0), App.Vector(-0.011966, -18.796578, 0), App.Vector(-0.012179, -18.81315, 0)], [4, 1, 1, 1, 1, 1, 1, 1, 1, 1, 1, 1, 1, 1, 1, 1, 4], [0, 1.061159961, 2.092171217, 3.098605391, 4.092036902, 5.070589041, 6.057187883, 7.061962211, 8.084674938, 9.107387665, 10.090954379, 11.06617917, 12.032717429, 12.99305519, 13.973669989, 14.965331307, 16], False, 3, [1, 1, 1, 1, 1, 1, 1, 1, 1, 1, 1, 1, 1, 1, 1, 1, 1, 1, 1], False),  # 29
], False)
sketch2.addConstraint([
    Sketcher.Constraint("Block", 2),
    Sketcher.Constraint("Block", 3),
    Sketcher.Constraint("Block", 4),
    Sketcher.Constraint("Block", 5),
    Sketcher.Constraint("Block", 7),
    Sketcher.Constraint("Block", 8),
    Sketcher.Constraint("Block", 9),
    Sketcher.Constraint("Block", 10),
    Sketcher.Constraint("Block", 13),
    Sketcher.Constraint("Block", 14),
    Sketcher.Constraint("Block", 15),
    Sketcher.Constraint("Block", 16),
    Sketcher.Constraint("Block", 18),
    Sketcher.Constraint("Block", 19),
    Sketcher.Constraint("Block", 20),
    Sketcher.Constraint("Block", 21),
    Sketcher.Constraint("Block", 22),
    Sketcher.Constraint("Block", 23),
    Sketcher.Constraint("Block", 24),
    Sketcher.Constraint("Block", 25),
    Sketcher.Constraint("Block", 26),
    Sketcher.Constraint("Block", 27),
    Sketcher.Constraint("Block", 28),
    Sketcher.Constraint("Block", 29),
    Sketcher.Constraint("Coincident", 0, 2, 1, 1),
    Sketcher.Constraint("Coincident", 1, 2, 2, 2),
    Sketcher.Constraint("Coincident", 5, 1, 6, 1),
    Sketcher.Constraint("Coincident", 6, 2, 0, 1),
    Sketcher.Constraint("Coincident", 11, 2, 12, 1),
    Sketcher.Constraint("Coincident", 12, 2, 13, 2),
    Sketcher.Constraint("Coincident", 16, 1, 17, 1),
    Sketcher.Constraint("Coincident", 17, 2, 11, 1),
    Sketcher.Constraint("Distance", 0, Q("0.565461 mm")),
    Sketcher.Constraint("Distance", 11, Q("0.565461 mm")),
    Sketcher.Constraint("DistanceX", -1, 1, 0, 2, Q("3.08141 mm")),
    Sketcher.Constraint("DistanceY", 0, 2, -1, 1, Q("23.48788 mm")),
    Sketcher.Constraint("DistanceX", -1, 1, 11, 2, Q("3.08141 mm")),
    Sketcher.Constraint("DistanceY", 6, 2, 1, 2, Q("1.311468 mm")),
    Sketcher.Constraint("DistanceY", 6, 2, 11, 2, Q("2.988011 mm")),
    Sketcher.Constraint("DistanceY", 17, 2, 12, 2, Q("1.311468 mm")),
])
pad2 = body.newObject("PartDesign::Pad", "Pad001")
pad2.Profile = sketch2
pad2.Length = 1

doc.recompute()
